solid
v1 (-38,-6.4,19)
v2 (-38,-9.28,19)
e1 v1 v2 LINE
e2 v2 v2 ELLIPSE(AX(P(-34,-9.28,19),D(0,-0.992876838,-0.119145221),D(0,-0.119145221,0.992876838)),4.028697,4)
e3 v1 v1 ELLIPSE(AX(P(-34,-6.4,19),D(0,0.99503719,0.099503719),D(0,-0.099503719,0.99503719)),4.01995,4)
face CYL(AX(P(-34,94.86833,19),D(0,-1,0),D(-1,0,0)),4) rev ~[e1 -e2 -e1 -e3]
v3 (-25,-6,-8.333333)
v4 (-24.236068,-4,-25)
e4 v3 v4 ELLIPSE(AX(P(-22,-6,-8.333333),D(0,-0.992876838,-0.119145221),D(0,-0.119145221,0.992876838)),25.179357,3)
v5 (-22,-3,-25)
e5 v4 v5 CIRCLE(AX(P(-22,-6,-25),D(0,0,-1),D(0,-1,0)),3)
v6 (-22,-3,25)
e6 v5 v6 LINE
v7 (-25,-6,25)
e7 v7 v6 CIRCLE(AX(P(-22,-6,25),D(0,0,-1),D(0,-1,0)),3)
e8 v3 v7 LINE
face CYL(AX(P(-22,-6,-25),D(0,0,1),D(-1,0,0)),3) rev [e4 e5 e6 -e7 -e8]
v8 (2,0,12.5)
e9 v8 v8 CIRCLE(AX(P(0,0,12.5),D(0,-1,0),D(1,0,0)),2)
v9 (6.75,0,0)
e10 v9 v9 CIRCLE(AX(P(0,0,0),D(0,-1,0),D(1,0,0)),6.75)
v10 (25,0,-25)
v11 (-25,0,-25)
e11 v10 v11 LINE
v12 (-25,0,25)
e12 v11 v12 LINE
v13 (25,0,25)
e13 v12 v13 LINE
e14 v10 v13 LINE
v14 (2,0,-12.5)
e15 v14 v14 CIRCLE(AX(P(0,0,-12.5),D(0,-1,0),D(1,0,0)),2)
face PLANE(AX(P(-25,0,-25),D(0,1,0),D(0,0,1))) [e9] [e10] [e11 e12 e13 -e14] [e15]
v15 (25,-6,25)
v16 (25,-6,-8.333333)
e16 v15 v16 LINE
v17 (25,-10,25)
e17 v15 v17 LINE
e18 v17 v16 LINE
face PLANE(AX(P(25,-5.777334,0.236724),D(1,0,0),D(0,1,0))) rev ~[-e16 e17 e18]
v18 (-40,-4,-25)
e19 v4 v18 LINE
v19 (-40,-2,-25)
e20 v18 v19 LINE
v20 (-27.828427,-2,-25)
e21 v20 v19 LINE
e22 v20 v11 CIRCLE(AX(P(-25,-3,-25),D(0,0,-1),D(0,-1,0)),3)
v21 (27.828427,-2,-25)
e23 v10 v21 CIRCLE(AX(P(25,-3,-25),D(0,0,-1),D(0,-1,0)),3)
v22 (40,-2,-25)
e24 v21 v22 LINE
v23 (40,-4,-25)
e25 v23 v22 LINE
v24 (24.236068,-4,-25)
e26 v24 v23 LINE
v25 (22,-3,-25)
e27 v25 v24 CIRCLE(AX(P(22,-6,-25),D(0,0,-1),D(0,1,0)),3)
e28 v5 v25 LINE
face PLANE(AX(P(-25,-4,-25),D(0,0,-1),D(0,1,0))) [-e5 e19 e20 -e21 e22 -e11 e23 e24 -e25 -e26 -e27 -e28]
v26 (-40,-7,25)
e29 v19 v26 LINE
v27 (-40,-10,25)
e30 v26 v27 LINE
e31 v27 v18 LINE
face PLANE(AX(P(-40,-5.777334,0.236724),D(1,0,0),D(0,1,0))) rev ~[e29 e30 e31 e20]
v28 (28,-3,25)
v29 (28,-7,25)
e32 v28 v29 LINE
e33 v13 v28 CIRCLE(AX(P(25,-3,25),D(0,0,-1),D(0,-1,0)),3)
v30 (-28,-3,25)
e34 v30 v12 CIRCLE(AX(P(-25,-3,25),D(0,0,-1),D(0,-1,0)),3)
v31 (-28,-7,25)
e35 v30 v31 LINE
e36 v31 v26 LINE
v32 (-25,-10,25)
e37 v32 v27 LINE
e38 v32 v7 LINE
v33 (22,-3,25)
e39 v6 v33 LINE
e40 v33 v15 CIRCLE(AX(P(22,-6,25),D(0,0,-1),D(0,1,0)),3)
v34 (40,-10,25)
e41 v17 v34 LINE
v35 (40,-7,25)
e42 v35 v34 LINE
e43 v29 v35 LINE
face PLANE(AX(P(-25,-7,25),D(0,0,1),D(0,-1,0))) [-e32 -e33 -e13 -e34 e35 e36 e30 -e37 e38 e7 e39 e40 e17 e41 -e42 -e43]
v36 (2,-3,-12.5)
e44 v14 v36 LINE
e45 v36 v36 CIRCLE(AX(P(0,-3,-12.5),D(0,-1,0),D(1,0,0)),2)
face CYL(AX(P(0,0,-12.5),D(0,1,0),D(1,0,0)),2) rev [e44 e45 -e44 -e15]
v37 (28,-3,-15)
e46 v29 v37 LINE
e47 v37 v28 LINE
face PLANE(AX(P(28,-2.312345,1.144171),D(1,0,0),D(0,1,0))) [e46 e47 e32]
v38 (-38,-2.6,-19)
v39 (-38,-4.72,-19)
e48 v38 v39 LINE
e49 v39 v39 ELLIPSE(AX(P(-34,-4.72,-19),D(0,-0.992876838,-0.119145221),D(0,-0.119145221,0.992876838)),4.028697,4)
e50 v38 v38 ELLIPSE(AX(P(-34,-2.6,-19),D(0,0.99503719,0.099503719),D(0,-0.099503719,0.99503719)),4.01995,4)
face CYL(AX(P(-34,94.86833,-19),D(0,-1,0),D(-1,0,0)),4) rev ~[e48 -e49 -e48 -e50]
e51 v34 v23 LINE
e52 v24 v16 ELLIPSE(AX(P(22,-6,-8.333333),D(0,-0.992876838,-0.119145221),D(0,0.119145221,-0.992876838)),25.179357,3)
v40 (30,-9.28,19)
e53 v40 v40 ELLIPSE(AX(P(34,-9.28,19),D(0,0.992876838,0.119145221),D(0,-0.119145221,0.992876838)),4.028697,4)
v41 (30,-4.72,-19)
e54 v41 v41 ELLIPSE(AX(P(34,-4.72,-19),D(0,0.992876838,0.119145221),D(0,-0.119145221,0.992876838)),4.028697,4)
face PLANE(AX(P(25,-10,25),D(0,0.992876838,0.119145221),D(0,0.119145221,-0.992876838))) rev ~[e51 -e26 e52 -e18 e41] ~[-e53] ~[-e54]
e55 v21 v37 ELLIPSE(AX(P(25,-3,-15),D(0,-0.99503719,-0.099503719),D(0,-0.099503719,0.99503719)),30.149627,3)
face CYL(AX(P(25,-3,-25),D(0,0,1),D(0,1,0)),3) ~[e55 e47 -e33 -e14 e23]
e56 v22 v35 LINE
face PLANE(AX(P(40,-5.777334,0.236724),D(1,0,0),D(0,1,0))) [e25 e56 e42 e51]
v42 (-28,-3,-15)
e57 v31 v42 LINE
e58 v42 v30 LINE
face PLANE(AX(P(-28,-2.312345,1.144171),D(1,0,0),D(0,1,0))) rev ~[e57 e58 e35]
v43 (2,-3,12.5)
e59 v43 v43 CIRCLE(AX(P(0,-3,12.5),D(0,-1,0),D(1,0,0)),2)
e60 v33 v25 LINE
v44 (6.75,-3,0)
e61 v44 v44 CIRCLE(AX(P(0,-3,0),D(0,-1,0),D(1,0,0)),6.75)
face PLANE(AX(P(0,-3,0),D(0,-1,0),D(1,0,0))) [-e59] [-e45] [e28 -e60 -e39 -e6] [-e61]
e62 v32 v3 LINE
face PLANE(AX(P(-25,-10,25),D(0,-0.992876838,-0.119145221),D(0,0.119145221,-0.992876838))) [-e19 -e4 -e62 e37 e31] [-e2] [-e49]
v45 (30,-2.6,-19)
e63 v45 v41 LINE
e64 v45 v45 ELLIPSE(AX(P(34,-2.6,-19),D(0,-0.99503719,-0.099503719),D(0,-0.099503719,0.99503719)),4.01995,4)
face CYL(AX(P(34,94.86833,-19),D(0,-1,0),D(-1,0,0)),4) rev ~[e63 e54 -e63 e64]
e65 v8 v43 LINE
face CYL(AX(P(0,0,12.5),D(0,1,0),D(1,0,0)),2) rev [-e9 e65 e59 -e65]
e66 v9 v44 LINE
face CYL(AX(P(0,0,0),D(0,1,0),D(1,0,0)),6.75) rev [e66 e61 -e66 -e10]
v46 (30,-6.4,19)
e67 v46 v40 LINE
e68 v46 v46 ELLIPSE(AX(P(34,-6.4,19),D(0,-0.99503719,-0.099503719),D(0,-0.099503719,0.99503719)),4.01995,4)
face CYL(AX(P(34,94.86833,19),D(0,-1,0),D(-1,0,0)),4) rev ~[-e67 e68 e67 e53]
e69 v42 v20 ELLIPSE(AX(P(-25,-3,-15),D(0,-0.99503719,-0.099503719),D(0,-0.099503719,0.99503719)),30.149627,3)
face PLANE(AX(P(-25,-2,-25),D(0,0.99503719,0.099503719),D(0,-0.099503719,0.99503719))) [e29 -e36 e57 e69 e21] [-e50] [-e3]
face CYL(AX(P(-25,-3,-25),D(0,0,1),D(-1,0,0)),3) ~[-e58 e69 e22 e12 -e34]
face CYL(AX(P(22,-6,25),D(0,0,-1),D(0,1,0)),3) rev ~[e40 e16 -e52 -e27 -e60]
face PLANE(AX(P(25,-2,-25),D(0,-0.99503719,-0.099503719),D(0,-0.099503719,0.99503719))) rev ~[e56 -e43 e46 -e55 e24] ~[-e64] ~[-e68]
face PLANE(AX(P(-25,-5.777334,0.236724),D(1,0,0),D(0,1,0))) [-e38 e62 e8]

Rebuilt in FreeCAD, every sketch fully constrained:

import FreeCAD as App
import Part
import Sketcher
from FreeCAD import Vector
Q = App.Units.Quantity


def edges_at(feature, points):
    """Names of the edges that pass closest to the given points."""
    edges = feature.Shape.Edges
    near = lambda p: min(range(len(edges)), key=lambda i: edges[i].distToShape(Part.Vertex(*p))[0])
    return sorted({f"Edge{near(p) + 1}" for p in points})

doc = App.newDocument("Part")
params = doc.addObject("Spreadsheet::Sheet", "Params")
for row, (alias, value) in enumerate([
    ("sketch1_diameter", "4 mm"),
    ("sketch1_diameter2", "13.5 mm"),
    ("sketch1_width", "50 mm"),
    ("pad1_length", "3 mm"),
    ("sketch2_width", "7 mm"),
    ("sketch2_width2", "2 mm"),
    ("sketch2_height", "50 mm"),
    ("pad2_length", "3 mm"),
    ("sketch3_width", "7 mm"),
    ("sketch3_width2", "2 mm"),
    ("sketch3_height", "50 mm"),
    ("pad3_length", "3 mm"),
    ("sketch4_width", "3 mm"),
    ("sketch4_width2", "2 mm"),
    ("pad4_length", "15 mm"),
    ("sketch5_width", "3 mm"),
    ("sketch5_width2", "2 mm"),
    ("pad5_length", "15 mm"),
    ("sketch6_diameter", "8 mm"),
    ("hole_diameter", "8 mm"),
    ("fillet_radius", "3 mm"),
], start=1):
    params.set(f"A{row}", alias)
    params.set(f"B{row}", "=" + value)
    params.setAlias(f"B{row}", alias)

body = doc.addObject("PartDesign::Body", "Body")

sketch1 = body.newObject("Sketcher::SketchObject", "Sketch")
sketch1.AttachmentSupport = (doc.getObject("XZ_Plane"), [""])
sketch1.MapMode = "FlatFace"
sketch1.addGeometry([
    Part.LineSegment(Vector(-25, 25, 0), Vector(-25, -25, 0)),
    Part.LineSegment(Vector(-25, -25, 0), Vector(25, -25, 0)),
    Part.LineSegment(Vector(25, -25, 0), Vector(25, 25, 0)),
    Part.LineSegment(Vector(25, 25, 0), Vector(-25, 25, 0)),
    Part.Circle(Vector(0, -12.5, 0), Vector(0, 0, 1), 2),
    Part.Circle(Vector(0, 0, 0), Vector(0, 0, 1), 6.8),
    Part.Circle(Vector(0, 12.5, 0), Vector(0, 0, 1), 2),
], False)
sketch1.addConstraint([
    Sketcher.Constraint("Coincident", 0, 2, 1, 1),
    Sketcher.Constraint("Coincident", 1, 2, 2, 1),
    Sketcher.Constraint("Coincident", 2, 2, 3, 1),
    Sketcher.Constraint("Coincident", 3, 2, 0, 1),
    Sketcher.Constraint("Vertical", 0),
    Sketcher.Constraint("Horizontal", 1),
    Sketcher.Constraint("Vertical", 2),
    Sketcher.Constraint("Horizontal", 3),
    Sketcher.Constraint("Coincident", 5, 3, -1, 1),
    Sketcher.Constraint("Equal", 4, 6),
    Sketcher.Constraint("Symmetric", 4, 3, 6, 3, -1, 1),
    Sketcher.Constraint("Symmetric", 0, 2, 2, 2, -1, 1),
    Sketcher.Constraint("PointOnObject", 4, 3, -2),
    Sketcher.Constraint("Equal", 3, 0),
    Sketcher.Constraint("Diameter", 4, Q("4 mm")),
    Sketcher.Constraint("Diameter", 5, Q("13.5 mm")),
    Sketcher.Constraint("DistanceX", 1, 1, 1, 2, Q("50 mm")),
    Sketcher.Constraint("DistanceY", 4, 3, 6, 3, Q("25 mm")),
])
sketch1.setExpression("Constraints[14]", "Params.sketch1_diameter")
sketch1.setExpression("Constraints[15]", "Params.sketch1_diameter2")
sketch1.setExpression("Constraints[16]", "Params.sketch1_width")
pad1 = body.newObject("PartDesign::Pad", "Pad")
pad1.Profile = sketch1
pad1.setExpression("Length", "Params.pad1_length")

sketch2 = body.newObject("Sketcher::SketchObject", "Sketch001")
sketch2.AttachmentSupport = (doc.getObject("YZ_Plane"), [""])
sketch2.MapMode = "FlatFace"
sketch2.AttachmentOffset = App.Placement(Vector(0, 0, 25), App.Rotation())
sketch2.addGeometry([
    Part.LineSegment(Vector(0, 25, 0), Vector(-7, 25, 0)),
    Part.LineSegment(Vector(-7, 25, 0), Vector(-2, -25, 0)),
    Part.LineSegment(Vector(-2, -25, 0), Vector(0, -25, 0)),
    Part.LineSegment(Vector(0, -25, 0), Vector(0, 25, 0)),
], False)
sketch2.addConstraint([
    Sketcher.Constraint("Coincident", 0, 2, 1, 1),
    Sketcher.Constraint("Coincident", 1, 2, 2, 1),
    Sketcher.Constraint("Coincident", 2, 2, 3, 1),
    Sketcher.Constraint("Coincident", 3, 2, 0, 1),
    Sketcher.Constraint("Horizontal", 0),
    Sketcher.Constraint("Horizontal", 2),
    Sketcher.Constraint("Vertical", 3),
    Sketcher.Constraint("Symmetric", 2, 2, 3, 2, -1, 1),
    Sketcher.Constraint("DistanceX", 0, 2, 0, 1, Q("7 mm")),
    Sketcher.Constraint("DistanceX", 2, 1, 2, 2, Q("2 mm")),
    Sketcher.Constraint("DistanceY", 3, 1, 3, 2, Q("50 mm")),
])
sketch2.setExpression("Constraints[8]", "Params.sketch2_width")
sketch2.setExpression("Constraints[9]", "Params.sketch2_width2")
sketch2.setExpression("Constraints[10]", "Params.sketch2_height")
pad2 = body.newObject("PartDesign::Pad", "Pad001")
pad2.Profile = sketch2
pad2.setExpression("Length", "Params.pad2_length")

sketch3 = body.newObject("Sketcher::SketchObject", "Sketch002")
sketch3.AttachmentSupport = (doc.getObject("YZ_Plane"), [""])
sketch3.MapMode = "FlatFace"
sketch3.AttachmentOffset = App.Placement(Vector(0, 0, -25), App.Rotation())
sketch3.addGeometry([
    Part.LineSegment(Vector(0, -25, 0), Vector(0, 25, 0)),
    Part.LineSegment(Vector(0, 25, 0), Vector(-7, 25, 0)),
    Part.LineSegment(Vector(-7, 25, 0), Vector(-2, -25, 0)),
    Part.LineSegment(Vector(-2, -25, 0), Vector(0, -25, 0)),
], False)
sketch3.addConstraint([
    Sketcher.Constraint("Coincident", 0, 2, 1, 1),
    Sketcher.Constraint("Coincident", 1, 2, 2, 1),
    Sketcher.Constraint("Coincident", 2, 2, 3, 1),
    Sketcher.Constraint("Coincident", 3, 2, 0, 1),
    Sketcher.Constraint("Vertical", 0),
    Sketcher.Constraint("Horizontal", 1),
    Sketcher.Constraint("Horizontal", 3),
    Sketcher.Constraint("Symmetric", 0, 2, 3, 2, -1, 1),
    Sketcher.Constraint("DistanceX", 1, 2, 1, 1, Q("7 mm")),
    Sketcher.Constraint("DistanceX", 3, 1, 3, 2, Q("2 mm")),
    Sketcher.Constraint("DistanceY", 0, 1, 0, 2, Q("50 mm")),
])
sketch3.setExpression("Constraints[8]", "Params.sketch3_width")
sketch3.setExpression("Constraints[9]", "Params.sketch3_width2")
sketch3.setExpression("Constraints[10]", "Params.sketch3_height")
pad3 = body.newObject("PartDesign::Pad", "Pad002")
pad3.Profile = sketch3
pad3.setExpression("Length", "Params.pad3_length")
pad3.Reversed = True

sketch4 = body.newObject("Sketcher::SketchObject", "Sketch003")
sketch4.AttachmentSupport = (doc.getObject("YZ_Plane"), [""])
sketch4.MapMode = "FlatFace"
sketch4.AttachmentOffset = App.Placement(Vector(0, 0, 25), App.Rotation())
sketch4.addGeometry([
    Part.LineSegment(Vector(-2, -25, 0), Vector(-7, 25, 0)),
    Part.LineSegment(Vector(-7, 25, 0), Vector(-10, 25, 0)),
    Part.LineSegment(Vector(-10, 25, 0), Vector(-4, -25, 0)),
    Part.LineSegment(Vector(-4, -25, 0), Vector(-2, -25, 0)),
], False)
sketch4.addConstraint([
    Sketcher.Constraint("Coincident", 0, 2, 1, 1),
    Sketcher.Constraint("Coincident", 1, 2, 2, 1),
    Sketcher.Constraint("Coincident", 2, 2, 3, 1),
    Sketcher.Constraint("Coincident", 3, 2, 0, 1),
    Sketcher.Constraint("Horizontal", 1),
    Sketcher.Constraint("Horizontal", 3),
    Sketcher.Constraint("DistanceX", 1, 2, 1, 1, Q("3 mm")),
    Sketcher.Constraint("DistanceX", 3, 1, 3, 2, Q("2 mm")),
    Sketcher.Constraint("DistanceX", 0, 2, -1, 1, Q("7 mm")),
    Sketcher.Constraint("DistanceY", -1, 1, 0, 2, Q("25 mm")),
    Sketcher.Constraint("DistanceX", 2, 2, -1, 1, Q("4 mm")),
    Sketcher.Constraint("DistanceY", 2, 2, -1, 1, Q("25 mm")),
])
sketch4.setExpression("Constraints[6]", "Params.sketch4_width")
sketch4.setExpression("Constraints[7]", "Params.sketch4_width2")
pad4 = body.newObject("PartDesign::Pad", "Pad003")
pad4.Profile = sketch4
pad4.setExpression("Length", "Params.pad4_length")

sketch5 = body.newObject("Sketcher::SketchObject", "Sketch004")
sketch5.AttachmentSupport = (doc.getObject("YZ_Plane"), [""])
sketch5.MapMode = "FlatFace"
sketch5.AttachmentOffset = App.Placement(Vector(0, 0, -25), App.Rotation())
sketch5.addGeometry([
    Part.LineSegment(Vector(-2, -25, 0), Vector(-7, 25, 0)),
    Part.LineSegment(Vector(-7, 25, 0), Vector(-10, 25, 0)),
    Part.LineSegment(Vector(-10, 25, 0), Vector(-4, -25, 0)),
    Part.LineSegment(Vector(-4, -25, 0), Vector(-2, -25, 0)),
], False)
sketch5.addConstraint([
    Sketcher.Constraint("Coincident", 0, 2, 1, 1),
    Sketcher.Constraint("Coincident", 1, 2, 2, 1),
    Sketcher.Constraint("Coincident", 2, 2, 3, 1),
    Sketcher.Constraint("Coincident", 3, 2, 0, 1),
    Sketcher.Constraint("Horizontal", 1),
    Sketcher.Constraint("Horizontal", 3),
    Sketcher.Constraint("DistanceX", 1, 2, 1, 1, Q("3 mm")),
    Sketcher.Constraint("DistanceX", 3, 1, 3, 2, Q("2 mm")),
    Sketcher.Constraint("DistanceX", 0, 2, -1, 1, Q("7 mm")),
    Sketcher.Constraint("DistanceY", -1, 1, 0, 2, Q("25 mm")),
    Sketcher.Constraint("DistanceX", 2, 2, -1, 1, Q("4 mm")),
    Sketcher.Constraint("DistanceY", 2, 2, -1, 1, Q("25 mm")),
])
sketch5.setExpression("Constraints[6]", "Params.sketch5_width")
sketch5.setExpression("Constraints[7]", "Params.sketch5_width2")
pad5 = body.newObject("PartDesign::Pad", "Pad004")
pad5.Profile = sketch5
pad5.setExpression("Length", "Params.pad5_length")
pad5.Reversed = True

sketch6 = body.newObject("Sketcher::SketchObject", "Sketch005")
sketch6.AttachmentSupport = (doc.getObject("XZ_Plane"), [""])
sketch6.MapMode = "FlatFace"
sketch6.addGeometry([
    Part.Circle(Vector(-34, 19, 0), Vector(0, 0, 1), 4),
    Part.Circle(Vector(-34, -19, 0), Vector(0, 0, 1), 4),
    Part.Circle(Vector(34, -19, 0), Vector(0, 0, 1), 4),
    Part.Circle(Vector(34, 19, 0), Vector(0, 0, 1), 4),
], False)
sketch6.addConstraint([
    Sketcher.Constraint("Equal", 0, 1),
    Sketcher.Constraint("Equal", 1, 2),
    Sketcher.Constraint("Equal", 2, 3),
    Sketcher.Constraint("Symmetric", 0, 3, 2, 3, -1, 1),
    Sketcher.Constraint("Symmetric", 1, 3, 3, 3, -1, 1),
    Sketcher.Constraint("Symmetric", 1, 3, 2, 3, -2),
    Sketcher.Constraint("Diameter", 0, Q("8 mm")),
    Sketcher.Constraint("DistanceX", 0, 3, -1, 1, Q("34 mm")),
    Sketcher.Constraint("DistanceY", -1, 1, 0, 3, Q("19 mm")),
])
sketch6.setExpression("Constraints[6]", "Params.sketch6_diameter")
doc.recompute()
hole = body.newObject("PartDesign::Hole", "Hole")
hole.Profile = sketch6
hole.ThreadType = "None"
hole.setExpression("Diameter", "Params.hole_diameter")
hole.DepthType = "ThroughAll"
hole.Reversed = True
doc.recompute()

fillet = body.newObject("PartDesign::Fillet", "Fillet")
fillet.Base = (hole, edges_at(hole, [
    (-28, 0, 0),
    (28, 0, 0),
    (25, -3, 0),
    (-25, -3, 0),
]))
fillet.setExpression("Radius", "Params.fillet_radius")

doc.recompute()
